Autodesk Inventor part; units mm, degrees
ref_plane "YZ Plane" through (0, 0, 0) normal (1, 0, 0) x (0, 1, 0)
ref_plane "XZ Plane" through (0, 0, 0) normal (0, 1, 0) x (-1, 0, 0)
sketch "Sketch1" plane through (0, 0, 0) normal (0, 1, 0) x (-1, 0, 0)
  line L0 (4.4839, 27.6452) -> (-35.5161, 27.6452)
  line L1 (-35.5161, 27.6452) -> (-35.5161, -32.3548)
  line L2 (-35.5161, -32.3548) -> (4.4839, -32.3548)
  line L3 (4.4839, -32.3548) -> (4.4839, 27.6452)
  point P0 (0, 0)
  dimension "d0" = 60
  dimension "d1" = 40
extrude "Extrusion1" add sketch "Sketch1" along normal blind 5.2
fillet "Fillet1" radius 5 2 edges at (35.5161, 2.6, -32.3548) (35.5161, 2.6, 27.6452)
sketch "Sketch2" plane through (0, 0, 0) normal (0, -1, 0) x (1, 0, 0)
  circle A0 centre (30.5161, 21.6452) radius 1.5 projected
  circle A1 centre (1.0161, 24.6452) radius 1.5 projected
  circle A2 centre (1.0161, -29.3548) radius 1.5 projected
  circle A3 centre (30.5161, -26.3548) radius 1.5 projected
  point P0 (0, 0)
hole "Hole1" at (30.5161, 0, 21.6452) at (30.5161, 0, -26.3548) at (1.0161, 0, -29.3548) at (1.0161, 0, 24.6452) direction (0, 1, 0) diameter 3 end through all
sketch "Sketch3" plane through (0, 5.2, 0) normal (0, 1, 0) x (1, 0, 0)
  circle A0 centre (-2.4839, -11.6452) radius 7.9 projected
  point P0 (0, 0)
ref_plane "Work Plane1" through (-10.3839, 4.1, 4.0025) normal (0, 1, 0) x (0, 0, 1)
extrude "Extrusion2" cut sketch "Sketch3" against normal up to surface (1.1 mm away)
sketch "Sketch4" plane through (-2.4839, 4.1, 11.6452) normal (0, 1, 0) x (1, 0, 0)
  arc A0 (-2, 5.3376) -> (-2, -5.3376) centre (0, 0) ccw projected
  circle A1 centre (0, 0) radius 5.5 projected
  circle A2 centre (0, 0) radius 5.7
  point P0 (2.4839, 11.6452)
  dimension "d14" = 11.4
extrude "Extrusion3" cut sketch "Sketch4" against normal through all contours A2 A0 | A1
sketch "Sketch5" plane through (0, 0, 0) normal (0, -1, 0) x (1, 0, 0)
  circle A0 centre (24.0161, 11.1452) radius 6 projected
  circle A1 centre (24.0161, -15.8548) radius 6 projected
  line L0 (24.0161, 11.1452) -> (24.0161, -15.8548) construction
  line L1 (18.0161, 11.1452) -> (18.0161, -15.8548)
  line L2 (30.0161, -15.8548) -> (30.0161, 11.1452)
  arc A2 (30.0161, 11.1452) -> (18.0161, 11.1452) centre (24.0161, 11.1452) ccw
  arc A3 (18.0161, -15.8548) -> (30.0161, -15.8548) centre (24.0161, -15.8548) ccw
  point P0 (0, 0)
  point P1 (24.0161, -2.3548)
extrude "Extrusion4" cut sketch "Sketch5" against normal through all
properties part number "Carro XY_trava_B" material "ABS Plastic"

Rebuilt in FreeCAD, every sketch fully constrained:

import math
import FreeCAD as App
import Part
import Sketcher

V = App.Vector


def edges_at(feature, points):
    """Names of the edges that pass closest to the given points."""
    edges = feature.Shape.Edges
    near = lambda p: min(range(len(edges)), key=lambda i: edges[i].distToShape(Part.Vertex(*p))[0])
    return sorted({f"Edge{near(p) + 1}" for p in points})

doc = App.newDocument("Part")
body = doc.addObject("PartDesign::Body", "Body")

# Sketch on XZ plane
sketch1 = doc.addObject("Sketcher::SketchObject", "Sketch")
body.addObject(sketch1)
sketch1.AttachmentSupport = (doc.XZ_Plane, [""])
sketch1.MapMode = "FlatFace"
sketch1.addGeometry(Part.LineSegment(V(-4, -32, 0), V(-4, 28, 0)), False)
sketch1.addGeometry(Part.LineSegment(V(-4, 28, 0), V(36, 28, 0)), False)
sketch1.addGeometry(Part.LineSegment(V(36, 28, 0), V(36, -32, 0)), False)
sketch1.addGeometry(Part.LineSegment(V(36, -32, 0), V(-4, -32, 0)), False)
sketch1.addConstraint(Sketcher.Constraint("Coincident", 0, 2, 1, 1))
sketch1.addConstraint(Sketcher.Constraint("Coincident", 1, 2, 2, 1))
sketch1.addConstraint(Sketcher.Constraint("Coincident", 2, 2, 3, 1))
sketch1.addConstraint(Sketcher.Constraint("Coincident", 3, 2, 0, 1))
sketch1.addConstraint(Sketcher.Constraint("Vertical", 0))
sketch1.addConstraint(Sketcher.Constraint("Horizontal", 1))
sketch1.addConstraint(Sketcher.Constraint("Vertical", 2))
sketch1.addConstraint(Sketcher.Constraint("Horizontal", 3))
sketch1.addConstraint(Sketcher.Constraint("DistanceX", 1, 1, 1, 2, 40.0))
sketch1.addConstraint(Sketcher.Constraint("DistanceY", 0, 1, 0, 2, 60.0))
sketch1.addConstraint(Sketcher.Constraint("DistanceX", 0, 2, -1, 1, 4.484))
sketch1.addConstraint(Sketcher.Constraint("DistanceY", -1, 1, 0, 2, 27.6452))
pad1 = doc.addObject("PartDesign::Pad", "Pad")
body.addObject(pad1)
pad1.Profile = sketch1
pad1.Length = 5.2
pad1.Reversed = True
doc.recompute()

fillet = doc.addObject("PartDesign::Fillet", "Fillet")
body.addObject(fillet)
fillet.Base = (pad1, edges_at(pad1, [(35.516, 2.6, -32.355), (35.516, 2.6, 27.645)]))
fillet.Radius = 5

# Sketch on XZ plane
sketch2 = doc.addObject("Sketcher::SketchObject", "Sketch001")
body.addObject(sketch2)
sketch2.AttachmentSupport = (doc.XZ_Plane, [""])
sketch2.MapMode = "FlatFace"
sketch2.addGeometry(Part.Circle(V(30.5, 21.6, 0), V(0, 0, 1), 1.5), False)
sketch2.addGeometry(Part.Circle(V(30.5, -26.4, 0), V(0, 0, 1), 1.5), False)
sketch2.addGeometry(Part.Circle(V(1, -29.4, 0), V(0, 0, 1), 1.5), False)
sketch2.addGeometry(Part.Circle(V(1, 24.6, 0), V(0, 0, 1), 1.5), False)
sketch2.addConstraint(Sketcher.Constraint("Equal", 0, 1))
sketch2.addConstraint(Sketcher.Constraint("Equal", 1, 2))
sketch2.addConstraint(Sketcher.Constraint("Equal", 2, 3))
sketch2.addConstraint(Sketcher.Constraint("Vertical", 0, 3, 1, 3))
sketch2.addConstraint(Sketcher.Constraint("Vertical", 2, 3, 3, 3))
sketch2.addConstraint(Sketcher.Constraint("Diameter", 0, 3.0))
sketch2.addConstraint(Sketcher.Constraint("DistanceY", 1, 3, 0, 3, 48.0))
sketch2.addConstraint(Sketcher.Constraint("DistanceY", 2, 3, 1, 3, 3.0))
sketch2.addConstraint(Sketcher.Constraint("DistanceY", 0, 3, 3, 3, 3.0))
sketch2.addConstraint(Sketcher.Constraint("DistanceX", 2, 3, 1, 3, 29.5))
sketch2.addConstraint(Sketcher.Constraint("DistanceX", -1, 1, 0, 3, 30.516))
sketch2.addConstraint(Sketcher.Constraint("DistanceY", -1, 1, 0, 3, 21.6452))
doc.recompute()
hole = doc.addObject("PartDesign::Hole", "Hole")
body.addObject(hole)
hole.Profile = sketch2
hole.ThreadType = "None"
hole.Diameter = 3
hole.DepthType = "ThroughAll"

# Sketch on XZ plane
sketch3 = doc.addObject("Sketcher::SketchObject", "Sketch002")
body.addObject(sketch3)
sketch3.AttachmentSupport = (doc.XZ_Plane, [""])
sketch3.MapMode = "FlatFace"
sketch3.AttachmentOffset = App.Placement(V(0, 0, -5.2), App.Rotation())
sketch3.addGeometry(Part.Circle(V(-2, 12, 0), V(0, 0, 1), 8), False)
sketch3.addConstraint(Sketcher.Constraint("Diameter", 0, 15.8))
sketch3.addConstraint(Sketcher.Constraint("DistanceX", 0, 3, -1, 1, 2.484))
sketch3.addConstraint(Sketcher.Constraint("DistanceY", -1, 1, 0, 3, 11.6452))
pocket1 = doc.addObject("PartDesign::Pocket", "Pocket")
body.addObject(pocket1)
pocket1.Profile = sketch3
pocket1.Length = 1.1
pocket1.Reversed = True

# Sketch on XZ plane
sketch4 = doc.addObject("Sketcher::SketchObject", "Sketch003")
body.addObject(sketch4)
sketch4.AttachmentSupport = (doc.XZ_Plane, [""])
sketch4.MapMode = "FlatFace"
sketch4.AttachmentOffset = App.Placement(V(0, 0, -4.1), App.Rotation())
sketch4.addGeometry(Part.Circle(V(-2, 12, 0), V(0, 0, 1), 6), False)
sketch4.addConstraint(Sketcher.Constraint("Diameter", 0, 11.4))
sketch4.addConstraint(Sketcher.Constraint("DistanceX", 0, 3, -1, 1, 2.484))
sketch4.addConstraint(Sketcher.Constraint("DistanceY", -1, 1, 0, 3, 11.6452))
pocket2 = doc.addObject("PartDesign::Pocket", "Pocket001")
body.addObject(pocket2)
pocket2.Profile = sketch4
pocket2.Type = "ThroughAll"
pocket2.Reversed = True

# Sketch on XZ plane
sketch5 = doc.addObject("Sketcher::SketchObject", "Sketch004")
body.addObject(sketch5)
sketch5.AttachmentSupport = (doc.XZ_Plane, [""])
sketch5.MapMode = "FlatFace"
sketch5.addGeometry(Part.ArcOfCircle(Part.Circle(V(24, 11, 0), V(0, 0, 1), 6), math.radians(0), math.radians(180)), False)
sketch5.addGeometry(Part.LineSegment(V(18, 11, 0), V(18, -16, 0)), False)
sketch5.addGeometry(Part.ArcOfCircle(Part.Circle(V(24, -16, 0), V(0, 0, 1), 6), math.radians(180), math.radians(360)), False)
sketch5.addGeometry(Part.LineSegment(V(30, -16, 0), V(30, 11, 0)), False)
sketch5.addConstraint(Sketcher.Constraint("Tangent", 0, 2, 1, 1))
sketch5.addConstraint(Sketcher.Constraint("Tangent", 1, 2, 2, 1))
sketch5.addConstraint(Sketcher.Constraint("Tangent", 2, 2, 3, 1))
sketch5.addConstraint(Sketcher.Constraint("Tangent", 3, 2, 0, 1))
sketch5.addConstraint(Sketcher.Constraint("Vertical", 1))
sketch5.addConstraint(Sketcher.Constraint("Vertical", 3))
sketch5.addConstraint(Sketcher.Constraint("Radius", 0, 6.0))
sketch5.addConstraint(Sketcher.Constraint("DistanceY", 1, 2, 1, 1, 27.0))
sketch5.addConstraint(Sketcher.Constraint("DistanceX", -1, 1, 0, 3, 24.016))
sketch5.addConstraint(Sketcher.Constraint("DistanceY", -1, 1, 0, 3, 11.1452))
pocket3 = doc.addObject("PartDesign::Pocket", "Pocket002")
body.addObject(pocket3)
pocket3.Profile = sketch5
pocket3.Type = "ThroughAll"

doc.recompute()
